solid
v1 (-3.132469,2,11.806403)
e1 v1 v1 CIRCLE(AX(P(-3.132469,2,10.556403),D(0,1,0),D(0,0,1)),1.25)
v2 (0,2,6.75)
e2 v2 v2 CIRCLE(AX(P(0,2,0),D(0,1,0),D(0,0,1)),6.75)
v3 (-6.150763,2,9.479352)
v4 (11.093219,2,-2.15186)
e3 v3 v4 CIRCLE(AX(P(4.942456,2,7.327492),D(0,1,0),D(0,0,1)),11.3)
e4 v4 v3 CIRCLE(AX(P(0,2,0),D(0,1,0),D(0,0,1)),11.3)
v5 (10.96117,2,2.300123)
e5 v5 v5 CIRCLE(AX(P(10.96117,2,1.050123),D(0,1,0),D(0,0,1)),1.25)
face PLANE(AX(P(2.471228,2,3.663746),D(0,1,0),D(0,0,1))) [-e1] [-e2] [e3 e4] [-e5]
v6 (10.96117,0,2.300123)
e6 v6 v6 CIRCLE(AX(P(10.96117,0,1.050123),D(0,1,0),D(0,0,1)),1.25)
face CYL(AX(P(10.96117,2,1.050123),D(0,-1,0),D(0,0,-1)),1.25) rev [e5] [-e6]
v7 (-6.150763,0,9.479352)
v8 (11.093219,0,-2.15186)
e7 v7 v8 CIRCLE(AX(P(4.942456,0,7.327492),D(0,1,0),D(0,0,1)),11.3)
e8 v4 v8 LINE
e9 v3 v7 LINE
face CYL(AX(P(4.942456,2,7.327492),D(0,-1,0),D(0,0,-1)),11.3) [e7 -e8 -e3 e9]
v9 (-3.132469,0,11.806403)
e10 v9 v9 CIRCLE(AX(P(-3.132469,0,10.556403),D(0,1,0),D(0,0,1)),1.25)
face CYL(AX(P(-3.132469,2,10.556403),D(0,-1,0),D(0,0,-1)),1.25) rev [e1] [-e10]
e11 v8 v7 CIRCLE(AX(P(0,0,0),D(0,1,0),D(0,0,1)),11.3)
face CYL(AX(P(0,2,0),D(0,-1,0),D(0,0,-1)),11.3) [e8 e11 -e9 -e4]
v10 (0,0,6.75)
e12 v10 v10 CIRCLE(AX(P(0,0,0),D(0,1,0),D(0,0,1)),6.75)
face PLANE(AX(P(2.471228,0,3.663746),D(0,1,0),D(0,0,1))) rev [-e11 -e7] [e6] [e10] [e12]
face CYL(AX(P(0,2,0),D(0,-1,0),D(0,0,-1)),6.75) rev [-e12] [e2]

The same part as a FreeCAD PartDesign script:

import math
import FreeCAD as App
import Part
import Sketcher
from FreeCAD import Vector
Q = App.Units.Quantity

doc = App.newDocument("Part")
params = doc.addObject("Spreadsheet::Sheet", "Params")
for row, (alias, value) in enumerate([
    ("sketch1_diameter", "2.5 mm"),
    ("sketch1_diameter2", "13.5 mm"),
    ("sketch1_radius", "11.3 mm"),
    ("pad1_length", "2 mm"),
], start=1):
    params.set(f"A{row}", alias)
    params.set(f"B{row}", "=" + value)
    params.setAlias(f"B{row}", alias)

body = doc.addObject("PartDesign::Body", "Body")

# Sketch on XZ plane
sketch1 = body.newObject("Sketcher::SketchObject", "Sketch")
sketch1.AttachmentSupport = (doc.getObject("XZ_Plane"), [""])
sketch1.MapMode = "FlatFace"
sketch1.addGeometry([
    Part.ArcOfCircle(Part.Circle(Vector(0, 0, 0), Vector(0, 0, 1), 11.3), math.radians(122.977887), math.radians(349.022113)),  # 0
    Part.ArcOfCircle(Part.Circle(Vector(4.942456, 7.327492, 0), Vector(0, 0, 1), 11.3), math.radians(-57.022113), math.radians(169.022113)),  # 1
    Part.Circle(Vector(-3.132469, 10.556403, 0), Vector(0, 0, 1), 1.25),  # 2
    Part.Circle(Vector(0, 0, 0), Vector(0, 0, 1), 6.75),  # 3
    Part.Circle(Vector(10.96117, 1.050123, 0), Vector(0, 0, 1), 1.25),  # 4
], False)
sketch1.addConstraint([
    Sketcher.Constraint("Coincident", 0, 1, 1, 2),
    Sketcher.Constraint("Coincident", 1, 1, 0, 2),
    Sketcher.Constraint("Coincident", 0, 3, -1, 1),
    Sketcher.Constraint("Coincident", 3, 3, -1, 1),
    Sketcher.Constraint("Equal", 0, 1),
    Sketcher.Constraint("Equal", 2, 4),
    Sketcher.Constraint("Diameter", 2, Q("2.5 mm")),
    Sketcher.Constraint("Diameter", 3, Q("13.5 mm")),
    Sketcher.Constraint("Radius", 0, Q("11.3 mm")),
    Sketcher.Constraint("DistanceY", -1, 1, 1, 3, Q("7.327492 mm")),
    Sketcher.Constraint("DistanceX", 2, 3, -1, 1, Q("3.132469 mm")),
    Sketcher.Constraint("DistanceX", -1, 1, 4, 3, Q("10.96117 mm")),
    Sketcher.Constraint("DistanceX", -1, 1, 1, 1, Q("11.093219 mm")),
    Sketcher.Constraint("DistanceY", 1, 3, 2, 3, Q("3.228911 mm")),
    Sketcher.Constraint("DistanceY", 4, 3, 1, 3, Q("6.277368 mm")),
])
sketch1.setExpression("Constraints[6]", "Params.sketch1_diameter")
sketch1.setExpression("Constraints[7]", "Params.sketch1_diameter2")
sketch1.setExpression("Constraints[8]", "Params.sketch1_radius")
pad1 = body.newObject("PartDesign::Pad", "Pad")
pad1.Profile = sketch1
pad1.setExpression("Length", "Params.pad1_length")
pad1.Reversed = True

doc.recompute()
